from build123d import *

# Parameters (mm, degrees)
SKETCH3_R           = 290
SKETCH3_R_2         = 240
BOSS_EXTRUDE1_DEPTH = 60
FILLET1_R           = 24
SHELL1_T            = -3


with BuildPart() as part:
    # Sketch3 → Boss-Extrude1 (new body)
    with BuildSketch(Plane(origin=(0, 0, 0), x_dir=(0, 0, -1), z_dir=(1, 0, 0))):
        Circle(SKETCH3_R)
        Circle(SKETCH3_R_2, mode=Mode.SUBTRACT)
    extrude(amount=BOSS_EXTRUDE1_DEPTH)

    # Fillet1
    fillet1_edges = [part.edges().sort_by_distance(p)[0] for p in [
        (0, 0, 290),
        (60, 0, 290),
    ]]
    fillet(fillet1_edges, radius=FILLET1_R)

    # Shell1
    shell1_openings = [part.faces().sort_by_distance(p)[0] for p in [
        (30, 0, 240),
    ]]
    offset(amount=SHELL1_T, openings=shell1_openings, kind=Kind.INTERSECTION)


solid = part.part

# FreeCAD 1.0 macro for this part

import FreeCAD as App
import Part
import Sketcher

V = App.Vector


def edges_at(feature, points):
    """Names of the edges that pass closest to the given points."""
    edges = feature.Shape.Edges
    near = lambda p: min(range(len(edges)), key=lambda i: edges[i].distToShape(Part.Vertex(*p))[0])
    return sorted({f"Edge{near(p) + 1}" for p in points})


def faces_at(feature, points):
    """Names of the faces that lie closest to the given points."""
    faces = feature.Shape.Faces
    near = lambda p: min(range(len(faces)), key=lambda i: faces[i].distToShape(Part.Vertex(*p))[0])
    return sorted({f"Face{near(p) + 1}" for p in points})

doc = App.newDocument("Part")
body = doc.addObject("PartDesign::Body", "Body")

sketch1 = body.newObject("Sketcher::SketchObject", "Sketch")
sketch1.AttachmentSupport = (doc.getObject("YZ_Plane"), [""])
sketch1.MapMode = "FlatFace"
sketch1.addGeometry(Part.Circle(V(0, 0, 0), V(0, 0, 1), 290), False)
sketch1.addGeometry(Part.Circle(V(0, 0, 0), V(0, 0, 1), 240), False)
sketch1.addConstraint(Sketcher.Constraint("Coincident", 0, 3, -1, 1))
sketch1.addConstraint(Sketcher.Constraint("Coincident", 1, 3, -1, 1))
sketch1.addConstraint(Sketcher.Constraint("Diameter", 0, 580.0))
sketch1.addConstraint(Sketcher.Constraint("Diameter", 1, 480.0))
pad1 = body.newObject("PartDesign::Pad", "Pad")
pad1.Profile = sketch1
pad1.Length = 60
doc.recompute()

fillet = body.newObject("PartDesign::Fillet", "Fillet")
fillet.Base = (pad1, edges_at(pad1, [(0, 0, 290), (60, 0, 290)]))
fillet.Radius = 24
doc.recompute()

thickness = body.newObject("PartDesign::Thickness", "Thickness")
thickness.Base = (fillet, faces_at(fillet, [(30, 0, 240)]))
thickness.Value = 3
thickness.Reversed = True
thickness.Join = "Intersection"

doc.recompute()
